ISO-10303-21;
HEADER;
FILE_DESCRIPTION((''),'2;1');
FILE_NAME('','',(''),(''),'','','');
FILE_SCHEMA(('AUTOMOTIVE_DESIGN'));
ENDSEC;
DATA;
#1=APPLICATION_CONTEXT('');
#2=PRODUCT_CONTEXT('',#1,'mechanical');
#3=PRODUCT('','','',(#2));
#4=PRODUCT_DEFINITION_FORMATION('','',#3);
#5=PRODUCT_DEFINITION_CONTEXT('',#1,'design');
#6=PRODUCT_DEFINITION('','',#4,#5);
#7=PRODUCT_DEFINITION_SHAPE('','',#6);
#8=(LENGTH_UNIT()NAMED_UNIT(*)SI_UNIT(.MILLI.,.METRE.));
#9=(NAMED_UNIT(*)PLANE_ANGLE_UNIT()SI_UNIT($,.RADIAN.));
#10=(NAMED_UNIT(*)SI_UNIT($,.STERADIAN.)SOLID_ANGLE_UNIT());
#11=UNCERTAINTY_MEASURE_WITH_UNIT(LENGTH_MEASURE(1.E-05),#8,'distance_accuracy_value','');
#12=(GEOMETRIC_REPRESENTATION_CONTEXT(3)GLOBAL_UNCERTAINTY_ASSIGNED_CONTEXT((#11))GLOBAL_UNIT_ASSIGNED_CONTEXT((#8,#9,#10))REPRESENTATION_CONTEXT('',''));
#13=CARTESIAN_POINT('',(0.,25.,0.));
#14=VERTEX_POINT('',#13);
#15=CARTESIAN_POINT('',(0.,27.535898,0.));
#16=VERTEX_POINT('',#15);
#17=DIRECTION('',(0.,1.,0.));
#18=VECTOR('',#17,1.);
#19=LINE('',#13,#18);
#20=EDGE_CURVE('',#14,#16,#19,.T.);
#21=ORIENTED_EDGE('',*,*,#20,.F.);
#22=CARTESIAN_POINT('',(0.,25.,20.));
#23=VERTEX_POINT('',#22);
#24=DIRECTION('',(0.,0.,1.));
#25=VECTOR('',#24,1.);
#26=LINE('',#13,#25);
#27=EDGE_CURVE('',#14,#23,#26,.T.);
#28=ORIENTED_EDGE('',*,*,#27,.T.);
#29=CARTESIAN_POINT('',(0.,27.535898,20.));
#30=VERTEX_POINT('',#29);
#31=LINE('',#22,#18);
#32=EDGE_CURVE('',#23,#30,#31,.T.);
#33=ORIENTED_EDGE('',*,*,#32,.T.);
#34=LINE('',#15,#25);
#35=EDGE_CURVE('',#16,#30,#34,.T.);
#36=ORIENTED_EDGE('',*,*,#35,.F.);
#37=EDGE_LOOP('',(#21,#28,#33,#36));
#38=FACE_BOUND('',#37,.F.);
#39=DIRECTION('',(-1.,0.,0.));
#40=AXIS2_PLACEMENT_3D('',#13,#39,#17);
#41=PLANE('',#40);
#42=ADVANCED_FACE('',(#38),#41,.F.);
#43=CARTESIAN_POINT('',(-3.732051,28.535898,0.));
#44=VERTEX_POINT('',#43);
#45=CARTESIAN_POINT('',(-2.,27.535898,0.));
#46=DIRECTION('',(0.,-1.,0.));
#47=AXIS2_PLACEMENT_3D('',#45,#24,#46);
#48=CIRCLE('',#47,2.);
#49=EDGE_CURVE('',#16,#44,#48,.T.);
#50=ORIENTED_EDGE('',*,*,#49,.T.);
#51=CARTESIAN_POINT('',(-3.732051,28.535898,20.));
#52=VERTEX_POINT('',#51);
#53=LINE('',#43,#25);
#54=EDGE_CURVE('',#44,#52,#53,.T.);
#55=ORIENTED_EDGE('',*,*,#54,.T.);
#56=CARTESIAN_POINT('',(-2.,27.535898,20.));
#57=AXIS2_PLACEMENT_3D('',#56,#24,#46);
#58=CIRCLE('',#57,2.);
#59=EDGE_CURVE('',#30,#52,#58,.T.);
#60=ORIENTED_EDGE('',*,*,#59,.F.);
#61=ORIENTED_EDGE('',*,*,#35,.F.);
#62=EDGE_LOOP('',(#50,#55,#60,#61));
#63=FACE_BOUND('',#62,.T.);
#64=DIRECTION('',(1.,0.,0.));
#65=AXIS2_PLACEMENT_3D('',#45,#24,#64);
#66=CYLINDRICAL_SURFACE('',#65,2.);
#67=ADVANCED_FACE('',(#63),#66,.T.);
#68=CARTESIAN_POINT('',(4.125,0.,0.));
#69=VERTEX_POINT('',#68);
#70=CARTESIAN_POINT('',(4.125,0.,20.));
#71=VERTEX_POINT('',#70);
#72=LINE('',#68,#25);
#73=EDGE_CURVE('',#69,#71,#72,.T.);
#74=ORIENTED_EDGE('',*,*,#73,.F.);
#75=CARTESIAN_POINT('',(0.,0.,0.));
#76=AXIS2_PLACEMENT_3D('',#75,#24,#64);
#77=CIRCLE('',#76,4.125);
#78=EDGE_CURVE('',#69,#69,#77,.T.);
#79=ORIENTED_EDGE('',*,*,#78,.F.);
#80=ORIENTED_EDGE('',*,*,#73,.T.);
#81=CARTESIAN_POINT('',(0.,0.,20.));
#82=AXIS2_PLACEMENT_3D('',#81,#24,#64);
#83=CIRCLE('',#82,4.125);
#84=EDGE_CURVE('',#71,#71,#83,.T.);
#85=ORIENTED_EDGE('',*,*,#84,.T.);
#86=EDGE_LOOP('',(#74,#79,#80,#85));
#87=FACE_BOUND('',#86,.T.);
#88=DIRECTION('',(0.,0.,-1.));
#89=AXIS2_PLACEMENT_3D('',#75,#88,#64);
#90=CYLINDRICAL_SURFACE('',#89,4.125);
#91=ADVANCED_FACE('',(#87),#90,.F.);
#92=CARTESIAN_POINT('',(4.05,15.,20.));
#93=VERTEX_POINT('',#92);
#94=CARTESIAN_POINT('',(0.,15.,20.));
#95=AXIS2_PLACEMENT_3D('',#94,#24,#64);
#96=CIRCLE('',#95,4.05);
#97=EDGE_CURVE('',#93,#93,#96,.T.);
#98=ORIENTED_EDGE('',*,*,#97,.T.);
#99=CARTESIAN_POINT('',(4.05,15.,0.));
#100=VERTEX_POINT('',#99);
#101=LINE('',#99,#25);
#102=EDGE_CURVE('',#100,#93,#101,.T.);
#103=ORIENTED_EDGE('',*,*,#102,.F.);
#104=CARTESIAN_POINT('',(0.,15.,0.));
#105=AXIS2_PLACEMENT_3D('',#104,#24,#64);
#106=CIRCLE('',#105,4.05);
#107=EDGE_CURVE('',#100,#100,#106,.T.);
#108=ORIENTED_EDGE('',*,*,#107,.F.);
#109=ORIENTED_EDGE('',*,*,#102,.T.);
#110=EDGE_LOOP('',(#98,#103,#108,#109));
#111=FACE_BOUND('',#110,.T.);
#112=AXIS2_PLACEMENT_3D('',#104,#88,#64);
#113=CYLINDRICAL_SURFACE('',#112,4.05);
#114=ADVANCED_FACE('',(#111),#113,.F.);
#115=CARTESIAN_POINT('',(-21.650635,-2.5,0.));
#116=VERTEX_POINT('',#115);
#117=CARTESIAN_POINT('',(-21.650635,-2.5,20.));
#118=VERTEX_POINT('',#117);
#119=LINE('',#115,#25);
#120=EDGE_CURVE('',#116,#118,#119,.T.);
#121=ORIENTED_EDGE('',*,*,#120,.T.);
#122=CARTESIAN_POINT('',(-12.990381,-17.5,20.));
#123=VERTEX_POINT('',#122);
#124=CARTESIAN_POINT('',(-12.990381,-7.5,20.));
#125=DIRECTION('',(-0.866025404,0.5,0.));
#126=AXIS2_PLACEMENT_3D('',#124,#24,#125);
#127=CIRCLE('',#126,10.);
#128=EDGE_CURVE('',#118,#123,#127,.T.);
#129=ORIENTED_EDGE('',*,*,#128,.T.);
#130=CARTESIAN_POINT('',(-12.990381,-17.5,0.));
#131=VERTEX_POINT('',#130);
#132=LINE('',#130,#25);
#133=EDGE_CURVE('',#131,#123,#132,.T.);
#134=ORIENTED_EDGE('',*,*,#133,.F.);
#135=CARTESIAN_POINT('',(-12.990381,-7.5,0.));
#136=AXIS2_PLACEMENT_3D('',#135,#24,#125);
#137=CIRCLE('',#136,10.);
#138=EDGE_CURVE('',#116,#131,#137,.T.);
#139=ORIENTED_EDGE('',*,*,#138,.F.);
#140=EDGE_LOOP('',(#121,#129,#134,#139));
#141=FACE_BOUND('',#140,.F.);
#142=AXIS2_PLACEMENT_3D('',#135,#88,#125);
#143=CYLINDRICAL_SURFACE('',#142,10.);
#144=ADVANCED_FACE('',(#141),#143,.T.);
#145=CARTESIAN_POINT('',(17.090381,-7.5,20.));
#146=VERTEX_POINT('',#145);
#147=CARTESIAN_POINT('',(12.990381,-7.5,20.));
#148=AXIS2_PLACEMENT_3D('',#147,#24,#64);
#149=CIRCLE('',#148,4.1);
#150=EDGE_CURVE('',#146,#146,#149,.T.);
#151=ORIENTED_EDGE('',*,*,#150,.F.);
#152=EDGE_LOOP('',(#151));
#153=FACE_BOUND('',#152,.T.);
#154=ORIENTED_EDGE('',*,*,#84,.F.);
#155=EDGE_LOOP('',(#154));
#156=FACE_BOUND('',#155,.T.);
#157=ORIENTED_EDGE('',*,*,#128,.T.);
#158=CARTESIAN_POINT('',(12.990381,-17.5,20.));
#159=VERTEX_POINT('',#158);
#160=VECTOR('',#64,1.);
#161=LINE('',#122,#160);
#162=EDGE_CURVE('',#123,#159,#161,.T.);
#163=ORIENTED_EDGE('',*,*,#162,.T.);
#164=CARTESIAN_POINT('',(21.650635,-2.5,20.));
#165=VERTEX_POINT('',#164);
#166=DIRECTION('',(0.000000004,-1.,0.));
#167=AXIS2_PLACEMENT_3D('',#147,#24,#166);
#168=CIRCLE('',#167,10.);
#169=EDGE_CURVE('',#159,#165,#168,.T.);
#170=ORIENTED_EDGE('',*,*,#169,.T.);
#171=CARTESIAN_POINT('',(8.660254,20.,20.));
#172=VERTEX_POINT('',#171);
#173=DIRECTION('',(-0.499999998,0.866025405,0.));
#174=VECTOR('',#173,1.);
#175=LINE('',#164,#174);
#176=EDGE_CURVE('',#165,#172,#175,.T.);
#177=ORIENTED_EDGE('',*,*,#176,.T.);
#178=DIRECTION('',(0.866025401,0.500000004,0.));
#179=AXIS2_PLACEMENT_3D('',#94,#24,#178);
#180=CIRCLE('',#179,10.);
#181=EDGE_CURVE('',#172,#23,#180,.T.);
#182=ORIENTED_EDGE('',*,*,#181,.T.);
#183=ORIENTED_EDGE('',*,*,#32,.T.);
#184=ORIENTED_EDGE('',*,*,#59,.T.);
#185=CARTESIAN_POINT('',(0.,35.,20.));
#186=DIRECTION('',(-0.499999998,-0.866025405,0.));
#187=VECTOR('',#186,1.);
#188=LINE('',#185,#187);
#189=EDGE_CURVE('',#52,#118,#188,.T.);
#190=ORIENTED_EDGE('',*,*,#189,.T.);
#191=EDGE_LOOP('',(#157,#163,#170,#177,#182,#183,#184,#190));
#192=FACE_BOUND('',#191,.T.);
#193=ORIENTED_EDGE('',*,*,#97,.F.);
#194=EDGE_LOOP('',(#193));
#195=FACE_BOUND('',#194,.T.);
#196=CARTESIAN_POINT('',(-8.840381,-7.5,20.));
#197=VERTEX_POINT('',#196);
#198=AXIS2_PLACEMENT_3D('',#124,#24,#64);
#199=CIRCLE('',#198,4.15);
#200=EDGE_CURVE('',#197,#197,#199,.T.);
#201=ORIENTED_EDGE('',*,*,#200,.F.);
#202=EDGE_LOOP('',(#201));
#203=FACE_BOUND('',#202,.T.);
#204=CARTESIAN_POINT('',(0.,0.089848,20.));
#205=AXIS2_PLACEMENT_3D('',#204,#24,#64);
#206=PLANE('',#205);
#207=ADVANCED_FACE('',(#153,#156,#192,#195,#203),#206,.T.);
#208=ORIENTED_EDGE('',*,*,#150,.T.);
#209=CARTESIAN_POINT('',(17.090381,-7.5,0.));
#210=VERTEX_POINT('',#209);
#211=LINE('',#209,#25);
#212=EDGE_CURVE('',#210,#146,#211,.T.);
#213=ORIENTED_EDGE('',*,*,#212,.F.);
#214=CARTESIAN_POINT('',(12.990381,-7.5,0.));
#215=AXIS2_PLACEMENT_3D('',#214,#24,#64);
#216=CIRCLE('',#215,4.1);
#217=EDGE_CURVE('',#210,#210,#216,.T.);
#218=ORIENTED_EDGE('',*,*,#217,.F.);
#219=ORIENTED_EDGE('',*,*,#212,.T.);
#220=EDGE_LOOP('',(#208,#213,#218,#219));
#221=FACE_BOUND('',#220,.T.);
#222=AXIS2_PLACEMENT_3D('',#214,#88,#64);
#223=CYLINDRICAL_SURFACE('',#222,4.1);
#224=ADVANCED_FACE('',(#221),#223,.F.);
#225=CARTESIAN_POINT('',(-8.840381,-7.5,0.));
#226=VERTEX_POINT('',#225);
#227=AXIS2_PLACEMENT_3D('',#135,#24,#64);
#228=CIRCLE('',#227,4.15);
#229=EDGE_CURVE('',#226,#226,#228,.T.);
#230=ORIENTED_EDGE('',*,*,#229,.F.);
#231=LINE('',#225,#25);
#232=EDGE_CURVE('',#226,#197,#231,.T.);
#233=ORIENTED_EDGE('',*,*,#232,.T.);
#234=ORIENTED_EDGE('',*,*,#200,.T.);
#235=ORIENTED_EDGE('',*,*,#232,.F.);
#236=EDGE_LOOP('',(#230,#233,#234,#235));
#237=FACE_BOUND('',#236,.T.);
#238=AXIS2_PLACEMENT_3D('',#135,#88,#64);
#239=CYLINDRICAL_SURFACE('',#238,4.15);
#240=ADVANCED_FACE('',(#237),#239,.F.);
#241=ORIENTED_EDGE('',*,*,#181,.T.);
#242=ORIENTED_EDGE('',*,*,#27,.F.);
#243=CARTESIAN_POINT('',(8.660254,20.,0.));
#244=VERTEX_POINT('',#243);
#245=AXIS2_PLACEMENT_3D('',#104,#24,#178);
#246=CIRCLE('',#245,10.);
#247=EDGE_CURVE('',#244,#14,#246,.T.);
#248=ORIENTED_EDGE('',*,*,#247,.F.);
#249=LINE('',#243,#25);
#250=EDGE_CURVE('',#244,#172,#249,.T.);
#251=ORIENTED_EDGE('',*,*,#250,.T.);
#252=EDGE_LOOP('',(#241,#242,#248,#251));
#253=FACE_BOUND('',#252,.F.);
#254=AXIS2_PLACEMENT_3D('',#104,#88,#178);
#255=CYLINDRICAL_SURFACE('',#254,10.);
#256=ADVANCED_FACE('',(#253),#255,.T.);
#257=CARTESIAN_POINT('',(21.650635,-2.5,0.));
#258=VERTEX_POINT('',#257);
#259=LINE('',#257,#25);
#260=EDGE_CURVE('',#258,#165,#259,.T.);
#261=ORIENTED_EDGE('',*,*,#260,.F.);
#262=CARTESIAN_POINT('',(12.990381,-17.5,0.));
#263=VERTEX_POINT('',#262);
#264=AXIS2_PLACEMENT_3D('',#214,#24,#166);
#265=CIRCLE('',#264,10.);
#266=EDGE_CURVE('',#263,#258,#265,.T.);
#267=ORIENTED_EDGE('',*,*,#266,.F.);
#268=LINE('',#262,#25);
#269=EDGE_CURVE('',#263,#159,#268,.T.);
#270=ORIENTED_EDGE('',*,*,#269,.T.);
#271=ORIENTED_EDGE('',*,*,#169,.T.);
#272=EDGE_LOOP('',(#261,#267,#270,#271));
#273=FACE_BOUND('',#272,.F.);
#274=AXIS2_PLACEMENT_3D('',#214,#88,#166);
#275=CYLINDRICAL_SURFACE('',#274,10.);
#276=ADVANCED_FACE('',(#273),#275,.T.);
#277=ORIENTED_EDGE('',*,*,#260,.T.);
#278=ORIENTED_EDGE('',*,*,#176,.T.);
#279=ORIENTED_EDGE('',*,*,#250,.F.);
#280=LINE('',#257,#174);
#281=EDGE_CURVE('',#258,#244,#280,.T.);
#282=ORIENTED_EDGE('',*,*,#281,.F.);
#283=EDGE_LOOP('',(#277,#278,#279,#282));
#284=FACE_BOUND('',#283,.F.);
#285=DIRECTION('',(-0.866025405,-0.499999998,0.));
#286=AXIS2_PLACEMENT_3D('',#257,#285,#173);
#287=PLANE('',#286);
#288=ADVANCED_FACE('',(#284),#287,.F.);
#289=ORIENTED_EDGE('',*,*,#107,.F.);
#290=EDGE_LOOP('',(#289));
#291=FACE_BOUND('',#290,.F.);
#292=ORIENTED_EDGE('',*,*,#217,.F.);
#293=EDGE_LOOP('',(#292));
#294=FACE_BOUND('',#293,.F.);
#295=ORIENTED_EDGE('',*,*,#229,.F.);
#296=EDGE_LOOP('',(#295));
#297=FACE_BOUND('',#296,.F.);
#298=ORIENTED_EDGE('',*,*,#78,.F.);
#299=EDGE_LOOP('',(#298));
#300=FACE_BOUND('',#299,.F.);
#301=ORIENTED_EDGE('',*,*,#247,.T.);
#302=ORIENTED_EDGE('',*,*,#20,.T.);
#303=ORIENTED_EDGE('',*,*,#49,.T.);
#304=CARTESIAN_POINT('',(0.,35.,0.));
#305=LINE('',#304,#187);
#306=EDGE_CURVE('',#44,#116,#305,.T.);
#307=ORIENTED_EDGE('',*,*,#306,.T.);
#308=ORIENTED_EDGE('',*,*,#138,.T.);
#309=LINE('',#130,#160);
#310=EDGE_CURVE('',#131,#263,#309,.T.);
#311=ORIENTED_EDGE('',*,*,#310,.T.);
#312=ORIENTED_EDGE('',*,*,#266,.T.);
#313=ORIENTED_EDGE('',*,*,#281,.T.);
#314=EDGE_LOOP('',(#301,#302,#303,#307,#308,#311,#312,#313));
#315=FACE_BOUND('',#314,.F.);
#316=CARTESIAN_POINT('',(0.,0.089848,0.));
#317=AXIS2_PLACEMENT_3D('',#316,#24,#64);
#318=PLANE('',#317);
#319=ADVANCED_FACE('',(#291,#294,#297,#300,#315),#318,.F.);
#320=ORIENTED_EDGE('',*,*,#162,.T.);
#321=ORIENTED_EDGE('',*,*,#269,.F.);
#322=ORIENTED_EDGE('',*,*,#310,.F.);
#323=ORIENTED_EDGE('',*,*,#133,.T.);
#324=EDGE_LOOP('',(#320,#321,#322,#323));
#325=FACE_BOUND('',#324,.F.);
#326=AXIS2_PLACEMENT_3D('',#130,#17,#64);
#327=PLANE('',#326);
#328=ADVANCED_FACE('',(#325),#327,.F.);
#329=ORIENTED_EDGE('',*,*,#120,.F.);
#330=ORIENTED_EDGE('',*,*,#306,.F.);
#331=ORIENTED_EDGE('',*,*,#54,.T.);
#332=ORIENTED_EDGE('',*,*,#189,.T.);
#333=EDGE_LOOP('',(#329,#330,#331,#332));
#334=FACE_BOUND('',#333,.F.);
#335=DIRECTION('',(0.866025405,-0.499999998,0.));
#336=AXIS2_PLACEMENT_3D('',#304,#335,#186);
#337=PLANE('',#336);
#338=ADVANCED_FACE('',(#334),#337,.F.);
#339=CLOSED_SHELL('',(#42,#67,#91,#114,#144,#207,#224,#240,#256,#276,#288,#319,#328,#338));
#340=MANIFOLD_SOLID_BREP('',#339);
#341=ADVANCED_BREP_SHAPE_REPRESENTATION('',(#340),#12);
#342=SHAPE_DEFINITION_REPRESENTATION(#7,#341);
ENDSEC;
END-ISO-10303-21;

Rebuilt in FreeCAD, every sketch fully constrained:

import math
import FreeCAD as App
import Part
import Sketcher
from FreeCAD import Vector


def edges_at(feature, points):
    """Names of the edges that pass closest to the given points."""
    edges = feature.Shape.Edges
    near = lambda p: min(range(len(edges)), key=lambda i: edges[i].distToShape(Part.Vertex(*p))[0])
    return sorted({f"Edge{near(p) + 1}" for p in points})

doc = App.newDocument("Part")
body = doc.addObject("PartDesign::Body", "Body")

# Sketch on XY plane
sketch1 = doc.addObject("Sketcher::SketchObject", "Sketch")
body.addObject(sketch1)
sketch1.AttachmentSupport = (doc.XY_Plane, [""])
sketch1.MapMode = "FlatFace"
sketch1.addGeometry([
    Part.ArcOfCircle(Part.Circle(Vector(0, 15, 0), Vector(0, 0, 1), 10), math.radians(30), math.radians(89.999999)),  # 0
    Part.LineSegment(Vector(0, 25, 0), Vector(0, 35, 0)),  # 1
    Part.LineSegment(Vector(0, 35, 0), Vector(-21.650635, -2.5, 0)),  # 2
    Part.ArcOfCircle(Part.Circle(Vector(-12.990381, -7.5, 0), Vector(0, 0, 1), 10), math.radians(150), math.radians(270)),  # 3
    Part.LineSegment(Vector(-12.990381, -17.5, 0), Vector(12.990381, -17.5, 0)),  # 4
    Part.ArcOfCircle(Part.Circle(Vector(12.990381, -7.5, 0), Vector(0, 0, 1), 10), math.radians(-90), math.radians(30)),  # 5
    Part.LineSegment(Vector(21.650635, -2.5, 0), Vector(8.660254, 20, 0)),  # 6
    Part.Circle(Vector(-12.990381, -7.5, 0), Vector(0, 0, 1), 4.15),  # 7
    Part.Circle(Vector(12.990381, -7.5, 0), Vector(0, 0, 1), 4.1),  # 8
    Part.Circle(Vector(0, 0, 0), Vector(0, 0, 1), 4.125),  # 9
    Part.Circle(Vector(0, 15, 0), Vector(0, 0, 1), 4.05),  # 10
], False)
sketch1.addConstraint([
    Sketcher.Constraint("Coincident", 0, 2, 1, 1),
    Sketcher.Constraint("Coincident", 1, 2, 2, 1),
    Sketcher.Constraint("Tangent", 2, 2, 3, 1),
    Sketcher.Constraint("Tangent", 3, 2, 4, 1),
    Sketcher.Constraint("Tangent", 4, 2, 5, 1),
    Sketcher.Constraint("Tangent", 5, 2, 6, 1),
    Sketcher.Constraint("Tangent", 6, 2, 0, 1),
    Sketcher.Constraint("Vertical", 1),
    Sketcher.Constraint("Horizontal", 4),
    Sketcher.Constraint("Coincident", 9, 3, -1, 1),
    Sketcher.Constraint("Coincident", 7, 3, 3, 3),
    Sketcher.Constraint("Coincident", 8, 3, 5, 3),
    Sketcher.Constraint("Coincident", 10, 3, 0, 3),
    Sketcher.Constraint("Equal", 0, 3),
    Sketcher.Constraint("Equal", 3, 5),
    Sketcher.Constraint("Symmetric", 2, 2, 5, 2, -2),
    Sketcher.Constraint("PointOnObject", 0, 3, -2),
    Sketcher.Constraint("PointOnObject", 0, 2, -2),
    Sketcher.Constraint("Radius", 0, 10.0),
    Sketcher.Constraint("Diameter", 7, 8.3),
    Sketcher.Constraint("Diameter", 8, 8.2),
    Sketcher.Constraint("Diameter", 10, 8.1),
    Sketcher.Constraint("Diameter", 9, 8.25),
    Sketcher.Constraint("DistanceY", 1, 1, 1, 2, 10.0),
    Sketcher.Constraint("DistanceY", -1, 1, 0, 3, 15.0),
    Sketcher.Constraint("DistanceY", 3, 3, -1, 1, 7.5),
])
pad1 = doc.addObject("PartDesign::Pad", "Pad")
body.addObject(pad1)
pad1.Profile = sketch1
pad1.Length = 20
doc.recompute()

fillet = doc.addObject("PartDesign::Fillet", "Fillet")
body.addObject(fillet)
fillet.Base = (pad1, edges_at(pad1, [(0, 35, 10)]))
fillet.Radius = 2

doc.recompute()
